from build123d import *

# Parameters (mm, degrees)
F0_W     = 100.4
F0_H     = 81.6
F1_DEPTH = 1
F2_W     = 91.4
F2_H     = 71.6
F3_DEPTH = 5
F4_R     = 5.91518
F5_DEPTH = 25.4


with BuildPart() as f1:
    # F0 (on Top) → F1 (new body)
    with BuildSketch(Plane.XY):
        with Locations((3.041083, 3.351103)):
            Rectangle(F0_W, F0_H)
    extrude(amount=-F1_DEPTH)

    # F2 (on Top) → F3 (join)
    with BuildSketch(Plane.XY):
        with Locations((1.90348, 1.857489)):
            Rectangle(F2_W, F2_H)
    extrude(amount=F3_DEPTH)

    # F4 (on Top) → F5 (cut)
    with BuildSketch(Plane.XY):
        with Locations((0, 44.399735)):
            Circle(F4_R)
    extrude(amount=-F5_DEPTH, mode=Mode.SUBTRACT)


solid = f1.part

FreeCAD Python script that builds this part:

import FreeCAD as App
import Part
import Sketcher


def add_polygon(sketch, points):
    """Adds a closed chain of lines whose ends are joined by coincident constraints."""
    first, n = sketch.GeometryCount, len(points)
    for a, b in zip(points, points[1:] + points[:1]):
        sketch.addGeometry(Part.LineSegment(App.Vector(*a, 0), App.Vector(*b, 0)), False)
    for i in range(n):
        sketch.addConstraint(Sketcher.Constraint("Coincident", first + i, 2, first + (i + 1) % n, 1))

doc = App.newDocument("Part")
body = doc.addObject("PartDesign::Body", "Body")

sketch1 = body.newObject("Sketcher::SketchObject", "Sketch")
sketch1.AttachmentSupport = (doc.getObject("XY_Plane"), [""])
sketch1.MapMode = "FlatFace"
add_polygon(sketch1, [(-47, 44), (-47, -37), (53, -37), (53, 44)])
sketch1.addConstraint([
    Sketcher.Constraint("Vertical", 0),
    Sketcher.Constraint("Horizontal", 1),
    Sketcher.Constraint("Vertical", 2),
    Sketcher.Constraint("Horizontal", 3),
    Sketcher.Constraint("DistanceX", 1, 1, 1, 2, 100.4),
    Sketcher.Constraint("DistanceY", 0, 2, 0, 1, 81.6),
    Sketcher.Constraint("DistanceX", 0, 2, -1, 1, 47.158917),
    Sketcher.Constraint("DistanceY", 0, 2, -1, 1, 37.448897),
])
pad1 = body.newObject("PartDesign::Pad", "Pad")
pad1.Profile = sketch1
pad1.Length = 1
pad1.Reversed = True

sketch2 = body.newObject("Sketcher::SketchObject", "Sketch001")
sketch2.AttachmentSupport = (doc.getObject("XY_Plane"), [""])
sketch2.MapMode = "FlatFace"
add_polygon(sketch2, [(-44, 38), (-44, -34), (48, -34), (48, 38)])
sketch2.addConstraint([
    Sketcher.Constraint("Vertical", 0),
    Sketcher.Constraint("Horizontal", 1),
    Sketcher.Constraint("Vertical", 2),
    Sketcher.Constraint("Horizontal", 3),
    Sketcher.Constraint("DistanceX", 1, 1, 1, 2, 91.4),
    Sketcher.Constraint("DistanceY", 0, 2, 0, 1, 71.6),
    Sketcher.Constraint("DistanceX", 0, 2, -1, 1, 43.79652),
    Sketcher.Constraint("DistanceY", 0, 2, -1, 1, 33.942511),
])
pad2 = body.newObject("PartDesign::Pad", "Pad001")
pad2.Profile = sketch2
pad2.Length = 5

sketch3 = body.newObject("Sketcher::SketchObject", "Sketch002")
sketch3.AttachmentSupport = (doc.getObject("XY_Plane"), [""])
sketch3.MapMode = "FlatFace"
sketch3.addGeometry(Part.Circle(App.Vector(0, 44, 0), App.Vector(0, 0, 1), 6), False)
sketch3.addConstraint([
    Sketcher.Constraint("PointOnObject", 0, 3, -2),
    Sketcher.Constraint("Diameter", 0, 11.83036),
    Sketcher.Constraint("DistanceY", -1, 1, 0, 3, 44.399735),
])
pocket1 = body.newObject("PartDesign::Pocket", "Pocket")
pocket1.Profile = sketch3
pocket1.Length = 25.4

doc.recompute()
